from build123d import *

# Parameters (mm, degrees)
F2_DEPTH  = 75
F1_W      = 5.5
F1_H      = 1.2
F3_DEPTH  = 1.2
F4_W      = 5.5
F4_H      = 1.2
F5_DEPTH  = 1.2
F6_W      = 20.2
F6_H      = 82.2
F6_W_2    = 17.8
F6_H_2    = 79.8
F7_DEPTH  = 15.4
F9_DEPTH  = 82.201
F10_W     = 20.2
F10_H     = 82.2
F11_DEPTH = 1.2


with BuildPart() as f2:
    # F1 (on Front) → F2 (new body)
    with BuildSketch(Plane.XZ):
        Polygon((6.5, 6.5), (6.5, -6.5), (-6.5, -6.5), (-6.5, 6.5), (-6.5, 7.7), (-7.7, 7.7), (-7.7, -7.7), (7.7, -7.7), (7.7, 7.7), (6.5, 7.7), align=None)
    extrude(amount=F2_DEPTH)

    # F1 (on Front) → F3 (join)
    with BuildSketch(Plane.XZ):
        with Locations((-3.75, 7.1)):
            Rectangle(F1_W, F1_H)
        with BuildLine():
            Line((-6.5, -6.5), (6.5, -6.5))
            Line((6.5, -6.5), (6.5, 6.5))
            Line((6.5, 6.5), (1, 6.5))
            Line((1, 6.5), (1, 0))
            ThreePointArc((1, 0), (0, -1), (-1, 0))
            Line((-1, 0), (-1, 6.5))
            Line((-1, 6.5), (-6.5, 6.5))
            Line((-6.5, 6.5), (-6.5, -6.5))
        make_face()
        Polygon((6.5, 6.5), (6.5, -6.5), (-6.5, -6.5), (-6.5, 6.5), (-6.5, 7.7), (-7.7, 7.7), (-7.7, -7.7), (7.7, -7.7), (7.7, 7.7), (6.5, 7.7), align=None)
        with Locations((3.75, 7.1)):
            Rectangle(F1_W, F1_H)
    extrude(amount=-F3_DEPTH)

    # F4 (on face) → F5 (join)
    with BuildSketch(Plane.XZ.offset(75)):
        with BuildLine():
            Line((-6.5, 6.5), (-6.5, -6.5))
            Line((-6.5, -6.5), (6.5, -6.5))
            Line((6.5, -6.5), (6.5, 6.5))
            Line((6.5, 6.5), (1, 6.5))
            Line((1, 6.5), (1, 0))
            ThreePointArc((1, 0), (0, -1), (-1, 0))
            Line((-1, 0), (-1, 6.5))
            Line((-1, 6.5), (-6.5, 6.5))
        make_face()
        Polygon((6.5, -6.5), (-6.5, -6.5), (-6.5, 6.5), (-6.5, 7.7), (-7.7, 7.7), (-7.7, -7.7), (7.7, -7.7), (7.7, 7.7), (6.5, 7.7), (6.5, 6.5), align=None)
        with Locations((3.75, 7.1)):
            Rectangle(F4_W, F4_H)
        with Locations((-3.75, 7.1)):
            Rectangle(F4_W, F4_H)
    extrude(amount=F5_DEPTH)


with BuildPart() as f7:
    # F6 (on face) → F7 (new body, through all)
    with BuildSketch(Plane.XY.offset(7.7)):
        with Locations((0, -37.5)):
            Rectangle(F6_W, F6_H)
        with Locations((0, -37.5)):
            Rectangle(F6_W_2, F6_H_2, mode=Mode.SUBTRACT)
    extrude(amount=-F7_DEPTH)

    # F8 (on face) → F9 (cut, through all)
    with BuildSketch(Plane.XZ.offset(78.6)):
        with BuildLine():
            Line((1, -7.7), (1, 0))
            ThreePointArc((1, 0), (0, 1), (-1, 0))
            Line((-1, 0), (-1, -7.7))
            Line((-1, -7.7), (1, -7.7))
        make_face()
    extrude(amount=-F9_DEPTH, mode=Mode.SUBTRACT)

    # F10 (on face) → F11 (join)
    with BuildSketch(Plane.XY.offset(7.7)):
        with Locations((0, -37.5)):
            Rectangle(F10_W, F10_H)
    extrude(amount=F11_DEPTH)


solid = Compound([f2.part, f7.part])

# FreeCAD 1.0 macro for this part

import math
import FreeCAD as App
import Part
import Sketcher
Q = App.Units.Quantity


def add_polygon(sketch, points):
    """Adds a closed chain of lines whose ends are joined by coincident constraints."""
    first, n = sketch.GeometryCount, len(points)
    for a, b in zip(points, points[1:] + points[:1]):
        sketch.addGeometry(Part.LineSegment(App.Vector(*a, 0), App.Vector(*b, 0)), False)
    for i in range(n):
        sketch.addConstraint(Sketcher.Constraint("Coincident", first + i, 2, first + (i + 1) % n, 1))

doc = App.newDocument("Part")
body = doc.addObject("PartDesign::Body", "Body")

# Sketch on XZ plane
sketch1 = body.newObject("Sketcher::SketchObject", "Sketch")
sketch1.AttachmentSupport = (doc.getObject("XZ_Plane"), [""])
sketch1.MapMode = "FlatFace"
add_polygon(sketch1, [(6.5, -6.5), (-6.5, -6.5), (-6.5, 7.7), (-7.7, 7.7), (-7.7, -7.7), (7.7, -7.7), (7.7, 7.7), (6.5, 7.7)])  # lines 0-7
sketch1.addConstraint([
    Sketcher.Constraint("Horizontal", 0),
    Sketcher.Constraint("Vertical", 1),
    Sketcher.Constraint("Horizontal", 2),
    Sketcher.Constraint("Vertical", 3),
    Sketcher.Constraint("Horizontal", 4),
    Sketcher.Constraint("Vertical", 5),
    Sketcher.Constraint("Horizontal", 6),
    Sketcher.Constraint("Vertical", 7),
    Sketcher.Constraint("Symmetric", 2, 2, 4, 2, -1, 1),
    Sketcher.Constraint("Symmetric", 1, 2, 6, 2, -2),
    Sketcher.Constraint("Equal", 4, 3),
    Sketcher.Constraint("DistanceX", 0, 2, 0, 1, Q("13 mm")),
    Sketcher.Constraint("DistanceX", 2, 2, 2, 1, Q("1.2 mm")),
    Sketcher.Constraint("DistanceY", 1, 1, 1, 2, Q("14.2 mm")),
])
pad1 = body.newObject("PartDesign::Pad", "Pad")
pad1.Profile = sketch1
pad1.Length = 75

# Sketch on XZ plane
sketch2 = body.newObject("Sketcher::SketchObject", "Sketch001")
sketch2.AttachmentSupport = (doc.getObject("XZ_Plane"), [""])
sketch2.MapMode = "FlatFace"
sketch2.addGeometry([
    Part.ArcOfCircle(Part.Circle(App.Vector(0, 0, 0), App.Vector(0, 0, 1), 1), math.radians(180), math.radians(360)),  # 0
    Part.LineSegment(App.Vector(-1, 0, 0), App.Vector(-1, 7.7, 0)),  # 1
    Part.LineSegment(App.Vector(-1, 7.7, 0), App.Vector(-7.7, 7.7, 0)),  # 2
    Part.LineSegment(App.Vector(-7.7, 7.7, 0), App.Vector(-7.7, -7.7, 0)),  # 3
    Part.LineSegment(App.Vector(-7.7, -7.7, 0), App.Vector(7.7, -7.7, 0)),  # 4
    Part.LineSegment(App.Vector(7.7, -7.7, 0), App.Vector(7.7, 7.7, 0)),  # 5
    Part.LineSegment(App.Vector(7.7, 7.7, 0), App.Vector(1, 7.7, 0)),  # 6
    Part.LineSegment(App.Vector(1, 7.7, 0), App.Vector(1, 0, 0)),  # 7
], False)
sketch2.addConstraint([
    Sketcher.Constraint("Tangent", 0, 1, 1, 1),
    Sketcher.Constraint("Coincident", 1, 2, 2, 1),
    Sketcher.Constraint("Coincident", 2, 2, 3, 1),
    Sketcher.Constraint("Coincident", 3, 2, 4, 1),
    Sketcher.Constraint("Coincident", 4, 2, 5, 1),
    Sketcher.Constraint("Coincident", 5, 2, 6, 1),
    Sketcher.Constraint("Coincident", 6, 2, 7, 1),
    Sketcher.Constraint("Tangent", 7, 2, 0, 2),
    Sketcher.Constraint("Vertical", 1),
    Sketcher.Constraint("Horizontal", 2),
    Sketcher.Constraint("Vertical", 3),
    Sketcher.Constraint("Horizontal", 4),
    Sketcher.Constraint("Vertical", 5),
    Sketcher.Constraint("Horizontal", 6),
    Sketcher.Constraint("Vertical", 7),
    Sketcher.Constraint("Coincident", 0, 3, -1, 1),
    Sketcher.Constraint("Symmetric", 2, 2, 4, 2, -1, 1),
    Sketcher.Constraint("Horizontal", 2, 2, 5, 2),
    Sketcher.Constraint("Equal", 4, 3),
    Sketcher.Constraint("Radius", 0, Q("1 mm")),
    Sketcher.Constraint("DistanceX", 2, 2, 2, 1, Q("6.7 mm")),
])
pad2 = body.newObject("PartDesign::Pad", "Pad001")
pad2.Profile = sketch2
pad2.Length = 1.2
pad2.Reversed = True

# Sketch on XZ plane
sketch3 = body.newObject("Sketcher::SketchObject", "Sketch002")
sketch3.AttachmentSupport = (doc.getObject("XZ_Plane"), [""])
sketch3.MapMode = "FlatFace"
sketch3.AttachmentOffset = App.Placement(App.Vector(0, 0, 75), App.Rotation())
sketch3.addGeometry([
    Part.ArcOfCircle(Part.Circle(App.Vector(0, 0, 0), App.Vector(0, 0, 1), 1), math.radians(180), math.radians(360)),  # 0
    Part.LineSegment(App.Vector(-1, 0, 0), App.Vector(-1, 7.7, 0)),  # 1
    Part.LineSegment(App.Vector(-1, 7.7, 0), App.Vector(-7.7, 7.7, 0)),  # 2
    Part.LineSegment(App.Vector(-7.7, 7.7, 0), App.Vector(-7.7, -7.7, 0)),  # 3
    Part.LineSegment(App.Vector(-7.7, -7.7, 0), App.Vector(7.7, -7.7, 0)),  # 4
    Part.LineSegment(App.Vector(7.7, -7.7, 0), App.Vector(7.7, 7.7, 0)),  # 5
    Part.LineSegment(App.Vector(7.7, 7.7, 0), App.Vector(1, 7.7, 0)),  # 6
    Part.LineSegment(App.Vector(1, 7.7, 0), App.Vector(1, 0, 0)),  # 7
], False)
sketch3.addConstraint([
    Sketcher.Constraint("Tangent", 0, 1, 1, 1),
    Sketcher.Constraint("Coincident", 1, 2, 2, 1),
    Sketcher.Constraint("Coincident", 2, 2, 3, 1),
    Sketcher.Constraint("Coincident", 3, 2, 4, 1),
    Sketcher.Constraint("Coincident", 4, 2, 5, 1),
    Sketcher.Constraint("Coincident", 5, 2, 6, 1),
    Sketcher.Constraint("Coincident", 6, 2, 7, 1),
    Sketcher.Constraint("Tangent", 7, 2, 0, 2),
    Sketcher.Constraint("Vertical", 1),
    Sketcher.Constraint("Horizontal", 2),
    Sketcher.Constraint("Vertical", 3),
    Sketcher.Constraint("Horizontal", 4),
    Sketcher.Constraint("Vertical", 5),
    Sketcher.Constraint("Horizontal", 6),
    Sketcher.Constraint("Vertical", 7),
    Sketcher.Constraint("Coincident", 0, 3, -1, 1),
    Sketcher.Constraint("Symmetric", 2, 2, 4, 2, -1, 1),
    Sketcher.Constraint("Horizontal", 2, 2, 5, 2),
    Sketcher.Constraint("Equal", 4, 3),
    Sketcher.Constraint("Radius", 0, Q("1 mm")),
    Sketcher.Constraint("DistanceX", 2, 2, 2, 1, Q("6.7 mm")),
])
pad3 = body.newObject("PartDesign::Pad", "Pad002")
pad3.Profile = sketch3
pad3.Length = 1.2
body2 = doc.addObject("PartDesign::Body", "Body001")

# Sketch on XY plane
sketch4 = body2.newObject("Sketcher::SketchObject", "Sketch003")
sketch4.AttachmentSupport = (doc.getObject("XY_Plane001"), [""])
sketch4.MapMode = "FlatFace"
sketch4.AttachmentOffset = App.Placement(App.Vector(0, 0, 7.7), App.Rotation())
add_polygon(sketch4, [(-10, 4), (-10, -79), (10, -79), (10, 4)])  # lines 0-3
add_polygon(sketch4, [(9, -77), (-9, -77), (-9, 2), (9, 2)])  # lines 4-7
sketch4.addConstraint([
    Sketcher.Constraint("Vertical", 0),
    Sketcher.Constraint("Horizontal", 1),
    Sketcher.Constraint("Vertical", 2),
    Sketcher.Constraint("Horizontal", 3),
    Sketcher.Constraint("Horizontal", 4),
    Sketcher.Constraint("Vertical", 5),
    Sketcher.Constraint("Horizontal", 6),
    Sketcher.Constraint("Vertical", 7),
    Sketcher.Constraint("DistanceX", 1, 1, 1, 2, Q("20.2 mm")),
    Sketcher.Constraint("DistanceX", 4, 2, 4, 1, Q("17.8 mm")),
    Sketcher.Constraint("DistanceY", 0, 2, 0, 1, Q("82.2 mm")),
    Sketcher.Constraint("DistanceY", 5, 1, 5, 2, Q("79.8 mm")),
    Sketcher.Constraint("DistanceX", 4, 2, 1, 2, Q("19 mm")),
    Sketcher.Constraint("DistanceY", 4, 2, 3, 2, Q("81 mm")),
    Sketcher.Constraint("DistanceX", 0, 2, -1, 1, Q("10.1 mm")),
    Sketcher.Constraint("DistanceY", 0, 2, -1, 1, Q("78.6 mm")),
])
pad4 = body2.newObject("PartDesign::Pad", "Pad003")
pad4.Profile = sketch4
pad4.Length = 15.4
pad4.Reversed = True

# Sketch on XZ plane
sketch5 = body2.newObject("Sketcher::SketchObject", "Sketch004")
sketch5.AttachmentSupport = (doc.getObject("XZ_Plane001"), [""])
sketch5.MapMode = "FlatFace"
sketch5.AttachmentOffset = App.Placement(App.Vector(0, 0, 78.6), App.Rotation())
sketch5.addGeometry([
    Part.LineSegment(App.Vector(1, -7.7, 0), App.Vector(1, 0, 0)),
    Part.ArcOfCircle(Part.Circle(App.Vector(0, 0, 0), App.Vector(0, 0, 1), 1), math.radians(0), math.radians(180)),
    Part.LineSegment(App.Vector(-1, 0, 0), App.Vector(-1, -7.7, 0)),
    Part.LineSegment(App.Vector(-1, -7.7, 0), App.Vector(1, -7.7, 0)),
], False)
sketch5.addConstraint([
    Sketcher.Constraint("Tangent", 0, 2, 1, 1),
    Sketcher.Constraint("Tangent", 1, 2, 2, 1),
    Sketcher.Constraint("Coincident", 2, 2, 3, 1),
    Sketcher.Constraint("Coincident", 3, 2, 0, 1),
    Sketcher.Constraint("Vertical", 0),
    Sketcher.Constraint("Vertical", 2),
    Sketcher.Constraint("Horizontal", 3),
    Sketcher.Constraint("Coincident", 1, 3, -1, 1),
    Sketcher.Constraint("Radius", 1, Q("1 mm")),
    Sketcher.Constraint("DistanceY", 0, 1, 0, 2, Q("7.7 mm")),
])
pocket1 = body2.newObject("PartDesign::Pocket", "Pocket")
pocket1.Profile = sketch5
pocket1.Type = "ThroughAll"

# Sketch on XY plane
sketch6 = body2.newObject("Sketcher::SketchObject", "Sketch005")
sketch6.AttachmentSupport = (doc.getObject("XY_Plane001"), [""])
sketch6.MapMode = "FlatFace"
sketch6.AttachmentOffset = App.Placement(App.Vector(0, 0, 7.7), App.Rotation())
add_polygon(sketch6, [(-10, 4), (-10, -79), (10, -79), (10, 4)])  # lines 0-3
sketch6.addConstraint([
    Sketcher.Constraint("Vertical", 0),
    Sketcher.Constraint("Horizontal", 1),
    Sketcher.Constraint("Vertical", 2),
    Sketcher.Constraint("Horizontal", 3),
    Sketcher.Constraint("DistanceX", 1, 1, 1, 2, Q("20.2 mm")),
    Sketcher.Constraint("DistanceY", 0, 2, 0, 1, Q("82.2 mm")),
    Sketcher.Constraint("DistanceX", 0, 2, -1, 1, Q("10.1 mm")),
    Sketcher.Constraint("DistanceY", 0, 2, -1, 1, Q("78.6 mm")),
])
pad5 = body2.newObject("PartDesign::Pad", "Pad004")
pad5.Profile = sketch6
pad5.Length = 1.2

doc.recompute()
